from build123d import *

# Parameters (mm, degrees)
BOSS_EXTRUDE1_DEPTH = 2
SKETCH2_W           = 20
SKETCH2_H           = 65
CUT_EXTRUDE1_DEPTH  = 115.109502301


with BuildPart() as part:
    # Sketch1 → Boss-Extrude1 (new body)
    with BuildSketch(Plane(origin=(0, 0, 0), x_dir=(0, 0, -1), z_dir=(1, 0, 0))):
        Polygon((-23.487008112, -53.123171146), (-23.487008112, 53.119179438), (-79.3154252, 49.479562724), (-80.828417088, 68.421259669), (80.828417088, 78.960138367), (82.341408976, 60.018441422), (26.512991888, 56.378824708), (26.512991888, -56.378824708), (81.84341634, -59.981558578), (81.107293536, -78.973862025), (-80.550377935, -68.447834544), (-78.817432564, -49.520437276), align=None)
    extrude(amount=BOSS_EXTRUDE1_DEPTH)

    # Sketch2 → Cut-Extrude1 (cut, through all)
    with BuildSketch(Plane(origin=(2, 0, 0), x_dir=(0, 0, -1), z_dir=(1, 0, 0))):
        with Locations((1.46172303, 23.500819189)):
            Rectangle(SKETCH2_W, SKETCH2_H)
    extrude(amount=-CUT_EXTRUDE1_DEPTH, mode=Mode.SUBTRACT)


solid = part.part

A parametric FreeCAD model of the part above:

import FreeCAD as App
import Part
import Sketcher
Q = App.Units.Quantity

doc = App.newDocument("Part")
body = doc.addObject("PartDesign::Body", "Body")

sketch1 = body.newObject("Sketcher::SketchObject", "Sketch")
sketch1.AttachmentSupport = (doc.getObject("YZ_Plane"), [""])
sketch1.MapMode = "FlatFace"
sketch1.addGeometry([
    Part.LineSegment(App.Vector(53.119179, 23.487008, 0), App.Vector(-53.123171, 23.487008, 0)),
    Part.LineSegment(App.Vector(-53.123171, 23.487008, 0), App.Vector(-49.520437, 78.817433, 0)),
    Part.LineSegment(App.Vector(-49.520437, 78.817433, 0), App.Vector(-68.447835, 80.550378, 0)),
    Part.LineSegment(App.Vector(-68.447835, 80.550378, 0), App.Vector(-78.973862, -81.107294, 0)),
    Part.LineSegment(App.Vector(-78.973862, -81.107294, 0), App.Vector(-59.981559, -81.843416, 0)),
    Part.LineSegment(App.Vector(-59.981559, -81.843416, 0), App.Vector(-56.378825, -26.512992, 0)),
    Part.LineSegment(App.Vector(-56.378825, -26.512992, 0), App.Vector(56.378825, -26.512992, 0)),
    Part.LineSegment(App.Vector(56.378825, -26.512992, 0), App.Vector(60.018441, -82.341409, 0)),
    Part.LineSegment(App.Vector(60.018441, -82.341409, 0), App.Vector(78.960138, -80.828417, 0)),
    Part.LineSegment(App.Vector(78.960138, -80.828417, 0), App.Vector(68.42126, 80.828417, 0)),
    Part.LineSegment(App.Vector(68.42126, 80.828417, 0), App.Vector(49.479563, 79.315425, 0)),
    Part.LineSegment(App.Vector(49.479563, 79.315425, 0), App.Vector(53.119179, 23.487008, 0)),
], False)
sketch1.addConstraint([
    Sketcher.Constraint("Coincident", 0, 2, 1, 1),
    Sketcher.Constraint("Coincident", 1, 2, 2, 1),
    Sketcher.Constraint("Coincident", 2, 2, 3, 1),
    Sketcher.Constraint("Coincident", 3, 2, 4, 1),
    Sketcher.Constraint("Coincident", 4, 2, 5, 1),
    Sketcher.Constraint("Coincident", 5, 2, 6, 1),
    Sketcher.Constraint("Coincident", 6, 2, 7, 1),
    Sketcher.Constraint("Coincident", 7, 2, 8, 1),
    Sketcher.Constraint("Coincident", 8, 2, 9, 1),
    Sketcher.Constraint("Coincident", 9, 2, 10, 1),
    Sketcher.Constraint("Coincident", 10, 2, 11, 1),
    Sketcher.Constraint("Coincident", 11, 2, 0, 1),
    Sketcher.Constraint("Horizontal", 0),
    Sketcher.Constraint("Horizontal", 6),
    Sketcher.Constraint("Distance", 3, Q("162 mm")),
    Sketcher.Constraint("Distance", 9, Q("162 mm")),
    Sketcher.Constraint("DistanceY", 5, 2, 0, 2, Q("50 mm")),
    Sketcher.Constraint("DistanceX", 4, 2, 7, 2, Q("120 mm")),
    Sketcher.Constraint("DistanceX", 1, 2, 10, 2, Q("99 mm")),
    Sketcher.Constraint("DistanceY", 4, 2, 8, 2, Q("1.014999 mm")),
    Sketcher.Constraint("DistanceX", 3, 2, 8, 2, Q("157.934 mm")),
    Sketcher.Constraint("DistanceX", 0, 2, 0, 1, Q("106.242351 mm")),
    Sketcher.Constraint("DistanceX", 6, 1, 6, 2, Q("112.757649 mm")),
    Sketcher.Constraint("DistanceY", 3, 2, 0, 2, Q("104.594302 mm")),
    Sketcher.Constraint("Distance", 7, Q("55.94693 mm")),
    Sketcher.Constraint("Distance", 11, Q("55.94693 mm")),
    Sketcher.Constraint("DistanceX", 0, 2, -1, 1, Q("53.123171 mm")),
    Sketcher.Constraint("DistanceY", -1, 1, 0, 2, Q("23.487008 mm")),
    Sketcher.Constraint("DistanceX", 4, 2, -1, 1, Q("59.981559 mm")),
    Sketcher.Constraint("DistanceY", 7, 2, -1, 1, Q("82.341409 mm")),
    Sketcher.Constraint("DistanceX", -1, 1, 8, 2, Q("78.960138 mm")),
    Sketcher.Constraint("DistanceX", -1, 1, 9, 2, Q("68.42126 mm")),
    Sketcher.Constraint("DistanceY", 0, 2, 2, 2, Q("57.06337 mm")),
    Sketcher.Constraint("DistanceX", 4, 2, 1, 2, Q("10.461121 mm")),
    Sketcher.Constraint("DistanceY", 4, 2, 1, 2, Q("160.660849 mm")),
    Sketcher.Constraint("DistanceY", 7, 2, 8, 2, Q("1.512992 mm")),
])
pad1 = body.newObject("PartDesign::Pad", "Pad")
pad1.Profile = sketch1
pad1.Length = 2

sketch2 = body.newObject("Sketcher::SketchObject", "Sketch001")
sketch2.AttachmentSupport = (doc.getObject("YZ_Plane"), [""])
sketch2.MapMode = "FlatFace"
sketch2.AttachmentOffset = App.Placement(App.Vector(0, 0, 2), App.Rotation())
sketch2.addGeometry([
    Part.LineSegment(App.Vector(56, 9, 0), App.Vector(-9, 9, 0)),
    Part.LineSegment(App.Vector(-9, 9, 0), App.Vector(-9, -11, 0)),
    Part.LineSegment(App.Vector(-9, -11, 0), App.Vector(56, -11, 0)),
    Part.LineSegment(App.Vector(56, -11, 0), App.Vector(56, 9, 0)),
], False)
sketch2.addConstraint([
    Sketcher.Constraint("Coincident", 0, 2, 1, 1),
    Sketcher.Constraint("Coincident", 1, 2, 2, 1),
    Sketcher.Constraint("Coincident", 2, 2, 3, 1),
    Sketcher.Constraint("Coincident", 3, 2, 0, 1),
    Sketcher.Constraint("Horizontal", 0),
    Sketcher.Constraint("Vertical", 1),
    Sketcher.Constraint("Horizontal", 2),
    Sketcher.Constraint("Vertical", 3),
    Sketcher.Constraint("DistanceX", 0, 2, 0, 1, Q("65 mm")),
    Sketcher.Constraint("DistanceY", 1, 2, 1, 1, Q("20 mm")),
    Sketcher.Constraint("DistanceX", 0, 2, -1, 1, Q("8.999181 mm")),
    Sketcher.Constraint("DistanceY", -1, 1, 0, 2, Q("8.538277 mm")),
])
pocket1 = body.newObject("PartDesign::Pocket", "Pocket")
pocket1.Profile = sketch2
pocket1.Type = "ThroughAll"

doc.recompute()
